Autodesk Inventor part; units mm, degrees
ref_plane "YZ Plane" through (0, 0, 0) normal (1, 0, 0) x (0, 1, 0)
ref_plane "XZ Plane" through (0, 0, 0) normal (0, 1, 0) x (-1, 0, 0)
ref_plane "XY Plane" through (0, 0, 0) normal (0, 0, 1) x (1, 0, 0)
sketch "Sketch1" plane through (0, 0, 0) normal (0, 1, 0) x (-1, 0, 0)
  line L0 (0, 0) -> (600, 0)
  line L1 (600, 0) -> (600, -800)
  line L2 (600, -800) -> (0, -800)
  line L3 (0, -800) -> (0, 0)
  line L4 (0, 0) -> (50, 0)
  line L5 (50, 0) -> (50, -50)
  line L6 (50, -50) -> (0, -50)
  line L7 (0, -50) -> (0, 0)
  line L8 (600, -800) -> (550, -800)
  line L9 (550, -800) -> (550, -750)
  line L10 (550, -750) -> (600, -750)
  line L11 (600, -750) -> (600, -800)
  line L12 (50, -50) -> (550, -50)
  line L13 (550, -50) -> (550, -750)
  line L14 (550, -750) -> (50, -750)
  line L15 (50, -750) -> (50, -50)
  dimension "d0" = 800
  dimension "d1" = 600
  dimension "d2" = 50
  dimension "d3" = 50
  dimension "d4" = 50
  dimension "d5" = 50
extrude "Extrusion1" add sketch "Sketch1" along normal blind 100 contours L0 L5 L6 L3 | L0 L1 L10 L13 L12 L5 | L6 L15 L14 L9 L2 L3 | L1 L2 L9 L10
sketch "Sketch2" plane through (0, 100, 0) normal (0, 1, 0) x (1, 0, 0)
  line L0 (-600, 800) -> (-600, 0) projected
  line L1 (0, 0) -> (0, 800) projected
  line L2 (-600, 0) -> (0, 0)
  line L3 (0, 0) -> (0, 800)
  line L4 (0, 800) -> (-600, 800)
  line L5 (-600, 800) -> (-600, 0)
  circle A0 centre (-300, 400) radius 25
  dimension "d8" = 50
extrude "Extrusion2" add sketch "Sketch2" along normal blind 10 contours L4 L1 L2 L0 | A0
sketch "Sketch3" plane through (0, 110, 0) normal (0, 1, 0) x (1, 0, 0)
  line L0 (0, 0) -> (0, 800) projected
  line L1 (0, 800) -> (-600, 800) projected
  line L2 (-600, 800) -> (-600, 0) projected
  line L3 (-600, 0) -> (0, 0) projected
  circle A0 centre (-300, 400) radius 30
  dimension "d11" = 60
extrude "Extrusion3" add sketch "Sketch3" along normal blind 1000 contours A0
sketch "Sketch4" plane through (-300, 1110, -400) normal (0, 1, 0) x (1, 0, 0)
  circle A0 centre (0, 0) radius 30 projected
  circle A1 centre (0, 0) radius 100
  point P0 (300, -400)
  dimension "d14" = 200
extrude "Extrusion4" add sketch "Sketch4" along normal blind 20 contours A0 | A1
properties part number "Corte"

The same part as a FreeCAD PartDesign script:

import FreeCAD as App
import Part
import Sketcher
from FreeCAD import Vector


def add_polygon(sketch, points):
    """Adds a closed chain of lines whose ends are joined by coincident constraints."""
    first, n = sketch.GeometryCount, len(points)
    for a, b in zip(points, points[1:] + points[:1]):
        sketch.addGeometry(Part.LineSegment(App.Vector(*a, 0), App.Vector(*b, 0)), False)
    for i in range(n):
        sketch.addConstraint(Sketcher.Constraint("Coincident", first + i, 2, first + (i + 1) % n, 1))

doc = App.newDocument("Part")
body = doc.addObject("PartDesign::Body", "Body")

sketch1 = body.newObject("Sketcher::SketchObject", "Sketch")
sketch1.AttachmentSupport = (doc.getObject("XZ_Plane"), [""])
sketch1.MapMode = "FlatFace"
add_polygon(sketch1, [(0, 0), (0, -800), (-600, -800), (-600, 0)])
add_polygon(sketch1, [(-550, -50), (-550, -750), (-50, -750), (-50, -50)])
sketch1.addConstraint([
    Sketcher.Constraint("Vertical", 0),
    Sketcher.Constraint("Horizontal", 1),
    Sketcher.Constraint("Vertical", 2),
    Sketcher.Constraint("Horizontal", 3),
    Sketcher.Constraint("Vertical", 4),
    Sketcher.Constraint("Horizontal", 5),
    Sketcher.Constraint("Vertical", 6),
    Sketcher.Constraint("Horizontal", 7),
    Sketcher.Constraint("Coincident", 3, 2, -1, 1),
    Sketcher.Constraint("DistanceX", 1, 2, 1, 1, 600.0),
    Sketcher.Constraint("DistanceY", 0, 2, 0, 1, 800.0),
    Sketcher.Constraint("DistanceX", 5, 2, -1, 1, 50.0),
    Sketcher.Constraint("DistanceY", 6, 2, -1, 1, 50.0),
    Sketcher.Constraint("DistanceX", 1, 2, 4, 2, 50.0),
    Sketcher.Constraint("DistanceY", 1, 2, 4, 2, 50.0),
])
pad1 = body.newObject("PartDesign::Pad", "Pad")
pad1.Profile = sketch1
pad1.Length = 100
pad1.Reversed = True

sketch2 = body.newObject("Sketcher::SketchObject", "Sketch001")
sketch2.AttachmentSupport = (doc.getObject("XZ_Plane"), [""])
sketch2.MapMode = "FlatFace"
sketch2.AttachmentOffset = App.Placement(Vector(0, 0, -100), App.Rotation())
add_polygon(sketch2, [(0, -800), (-600, -800), (-600, 0), (0, 0)])
sketch2.addConstraint([
    Sketcher.Constraint("Horizontal", 0),
    Sketcher.Constraint("Vertical", 1),
    Sketcher.Constraint("Horizontal", 2),
    Sketcher.Constraint("Vertical", 3),
    Sketcher.Constraint("Coincident", 2, 2, -1, 1),
    Sketcher.Constraint("DistanceX", 0, 2, 0, 1, 600.0),
    Sketcher.Constraint("DistanceY", 1, 1, 1, 2, 800.0),
])
pad2 = body.newObject("PartDesign::Pad", "Pad001")
pad2.Profile = sketch2
pad2.Length = 10
pad2.Reversed = True

sketch3 = body.newObject("Sketcher::SketchObject", "Sketch002")
sketch3.AttachmentSupport = (doc.getObject("XZ_Plane"), [""])
sketch3.MapMode = "FlatFace"
sketch3.AttachmentOffset = App.Placement(Vector(0, 0, -110), App.Rotation())
sketch3.addGeometry(Part.Circle(Vector(-300, -400, 0), Vector(0, 0, 1), 30), False)
sketch3.addConstraint([
    Sketcher.Constraint("Diameter", 0, 60.0),
    Sketcher.Constraint("DistanceX", 0, 3, -1, 1, 300.0),
    Sketcher.Constraint("DistanceY", 0, 3, -1, 1, 400.0),
])
pad3 = body.newObject("PartDesign::Pad", "Pad002")
pad3.Profile = sketch3
pad3.Length = 1000
pad3.Reversed = True

sketch4 = body.newObject("Sketcher::SketchObject", "Sketch003")
sketch4.AttachmentSupport = (doc.getObject("XZ_Plane"), [""])
sketch4.MapMode = "FlatFace"
sketch4.AttachmentOffset = App.Placement(Vector(0, 0, -1110), App.Rotation())
sketch4.addGeometry(Part.Circle(Vector(-300, -400, 0), Vector(0, 0, 1), 100), False)
sketch4.addConstraint([
    Sketcher.Constraint("Diameter", 0, 200.0),
    Sketcher.Constraint("DistanceX", 0, 3, -1, 1, 300.0),
    Sketcher.Constraint("DistanceY", 0, 3, -1, 1, 400.0),
])
pad4 = body.newObject("PartDesign::Pad", "Pad003")
pad4.Profile = sketch4
pad4.Length = 20
pad4.Reversed = True

doc.recompute()
